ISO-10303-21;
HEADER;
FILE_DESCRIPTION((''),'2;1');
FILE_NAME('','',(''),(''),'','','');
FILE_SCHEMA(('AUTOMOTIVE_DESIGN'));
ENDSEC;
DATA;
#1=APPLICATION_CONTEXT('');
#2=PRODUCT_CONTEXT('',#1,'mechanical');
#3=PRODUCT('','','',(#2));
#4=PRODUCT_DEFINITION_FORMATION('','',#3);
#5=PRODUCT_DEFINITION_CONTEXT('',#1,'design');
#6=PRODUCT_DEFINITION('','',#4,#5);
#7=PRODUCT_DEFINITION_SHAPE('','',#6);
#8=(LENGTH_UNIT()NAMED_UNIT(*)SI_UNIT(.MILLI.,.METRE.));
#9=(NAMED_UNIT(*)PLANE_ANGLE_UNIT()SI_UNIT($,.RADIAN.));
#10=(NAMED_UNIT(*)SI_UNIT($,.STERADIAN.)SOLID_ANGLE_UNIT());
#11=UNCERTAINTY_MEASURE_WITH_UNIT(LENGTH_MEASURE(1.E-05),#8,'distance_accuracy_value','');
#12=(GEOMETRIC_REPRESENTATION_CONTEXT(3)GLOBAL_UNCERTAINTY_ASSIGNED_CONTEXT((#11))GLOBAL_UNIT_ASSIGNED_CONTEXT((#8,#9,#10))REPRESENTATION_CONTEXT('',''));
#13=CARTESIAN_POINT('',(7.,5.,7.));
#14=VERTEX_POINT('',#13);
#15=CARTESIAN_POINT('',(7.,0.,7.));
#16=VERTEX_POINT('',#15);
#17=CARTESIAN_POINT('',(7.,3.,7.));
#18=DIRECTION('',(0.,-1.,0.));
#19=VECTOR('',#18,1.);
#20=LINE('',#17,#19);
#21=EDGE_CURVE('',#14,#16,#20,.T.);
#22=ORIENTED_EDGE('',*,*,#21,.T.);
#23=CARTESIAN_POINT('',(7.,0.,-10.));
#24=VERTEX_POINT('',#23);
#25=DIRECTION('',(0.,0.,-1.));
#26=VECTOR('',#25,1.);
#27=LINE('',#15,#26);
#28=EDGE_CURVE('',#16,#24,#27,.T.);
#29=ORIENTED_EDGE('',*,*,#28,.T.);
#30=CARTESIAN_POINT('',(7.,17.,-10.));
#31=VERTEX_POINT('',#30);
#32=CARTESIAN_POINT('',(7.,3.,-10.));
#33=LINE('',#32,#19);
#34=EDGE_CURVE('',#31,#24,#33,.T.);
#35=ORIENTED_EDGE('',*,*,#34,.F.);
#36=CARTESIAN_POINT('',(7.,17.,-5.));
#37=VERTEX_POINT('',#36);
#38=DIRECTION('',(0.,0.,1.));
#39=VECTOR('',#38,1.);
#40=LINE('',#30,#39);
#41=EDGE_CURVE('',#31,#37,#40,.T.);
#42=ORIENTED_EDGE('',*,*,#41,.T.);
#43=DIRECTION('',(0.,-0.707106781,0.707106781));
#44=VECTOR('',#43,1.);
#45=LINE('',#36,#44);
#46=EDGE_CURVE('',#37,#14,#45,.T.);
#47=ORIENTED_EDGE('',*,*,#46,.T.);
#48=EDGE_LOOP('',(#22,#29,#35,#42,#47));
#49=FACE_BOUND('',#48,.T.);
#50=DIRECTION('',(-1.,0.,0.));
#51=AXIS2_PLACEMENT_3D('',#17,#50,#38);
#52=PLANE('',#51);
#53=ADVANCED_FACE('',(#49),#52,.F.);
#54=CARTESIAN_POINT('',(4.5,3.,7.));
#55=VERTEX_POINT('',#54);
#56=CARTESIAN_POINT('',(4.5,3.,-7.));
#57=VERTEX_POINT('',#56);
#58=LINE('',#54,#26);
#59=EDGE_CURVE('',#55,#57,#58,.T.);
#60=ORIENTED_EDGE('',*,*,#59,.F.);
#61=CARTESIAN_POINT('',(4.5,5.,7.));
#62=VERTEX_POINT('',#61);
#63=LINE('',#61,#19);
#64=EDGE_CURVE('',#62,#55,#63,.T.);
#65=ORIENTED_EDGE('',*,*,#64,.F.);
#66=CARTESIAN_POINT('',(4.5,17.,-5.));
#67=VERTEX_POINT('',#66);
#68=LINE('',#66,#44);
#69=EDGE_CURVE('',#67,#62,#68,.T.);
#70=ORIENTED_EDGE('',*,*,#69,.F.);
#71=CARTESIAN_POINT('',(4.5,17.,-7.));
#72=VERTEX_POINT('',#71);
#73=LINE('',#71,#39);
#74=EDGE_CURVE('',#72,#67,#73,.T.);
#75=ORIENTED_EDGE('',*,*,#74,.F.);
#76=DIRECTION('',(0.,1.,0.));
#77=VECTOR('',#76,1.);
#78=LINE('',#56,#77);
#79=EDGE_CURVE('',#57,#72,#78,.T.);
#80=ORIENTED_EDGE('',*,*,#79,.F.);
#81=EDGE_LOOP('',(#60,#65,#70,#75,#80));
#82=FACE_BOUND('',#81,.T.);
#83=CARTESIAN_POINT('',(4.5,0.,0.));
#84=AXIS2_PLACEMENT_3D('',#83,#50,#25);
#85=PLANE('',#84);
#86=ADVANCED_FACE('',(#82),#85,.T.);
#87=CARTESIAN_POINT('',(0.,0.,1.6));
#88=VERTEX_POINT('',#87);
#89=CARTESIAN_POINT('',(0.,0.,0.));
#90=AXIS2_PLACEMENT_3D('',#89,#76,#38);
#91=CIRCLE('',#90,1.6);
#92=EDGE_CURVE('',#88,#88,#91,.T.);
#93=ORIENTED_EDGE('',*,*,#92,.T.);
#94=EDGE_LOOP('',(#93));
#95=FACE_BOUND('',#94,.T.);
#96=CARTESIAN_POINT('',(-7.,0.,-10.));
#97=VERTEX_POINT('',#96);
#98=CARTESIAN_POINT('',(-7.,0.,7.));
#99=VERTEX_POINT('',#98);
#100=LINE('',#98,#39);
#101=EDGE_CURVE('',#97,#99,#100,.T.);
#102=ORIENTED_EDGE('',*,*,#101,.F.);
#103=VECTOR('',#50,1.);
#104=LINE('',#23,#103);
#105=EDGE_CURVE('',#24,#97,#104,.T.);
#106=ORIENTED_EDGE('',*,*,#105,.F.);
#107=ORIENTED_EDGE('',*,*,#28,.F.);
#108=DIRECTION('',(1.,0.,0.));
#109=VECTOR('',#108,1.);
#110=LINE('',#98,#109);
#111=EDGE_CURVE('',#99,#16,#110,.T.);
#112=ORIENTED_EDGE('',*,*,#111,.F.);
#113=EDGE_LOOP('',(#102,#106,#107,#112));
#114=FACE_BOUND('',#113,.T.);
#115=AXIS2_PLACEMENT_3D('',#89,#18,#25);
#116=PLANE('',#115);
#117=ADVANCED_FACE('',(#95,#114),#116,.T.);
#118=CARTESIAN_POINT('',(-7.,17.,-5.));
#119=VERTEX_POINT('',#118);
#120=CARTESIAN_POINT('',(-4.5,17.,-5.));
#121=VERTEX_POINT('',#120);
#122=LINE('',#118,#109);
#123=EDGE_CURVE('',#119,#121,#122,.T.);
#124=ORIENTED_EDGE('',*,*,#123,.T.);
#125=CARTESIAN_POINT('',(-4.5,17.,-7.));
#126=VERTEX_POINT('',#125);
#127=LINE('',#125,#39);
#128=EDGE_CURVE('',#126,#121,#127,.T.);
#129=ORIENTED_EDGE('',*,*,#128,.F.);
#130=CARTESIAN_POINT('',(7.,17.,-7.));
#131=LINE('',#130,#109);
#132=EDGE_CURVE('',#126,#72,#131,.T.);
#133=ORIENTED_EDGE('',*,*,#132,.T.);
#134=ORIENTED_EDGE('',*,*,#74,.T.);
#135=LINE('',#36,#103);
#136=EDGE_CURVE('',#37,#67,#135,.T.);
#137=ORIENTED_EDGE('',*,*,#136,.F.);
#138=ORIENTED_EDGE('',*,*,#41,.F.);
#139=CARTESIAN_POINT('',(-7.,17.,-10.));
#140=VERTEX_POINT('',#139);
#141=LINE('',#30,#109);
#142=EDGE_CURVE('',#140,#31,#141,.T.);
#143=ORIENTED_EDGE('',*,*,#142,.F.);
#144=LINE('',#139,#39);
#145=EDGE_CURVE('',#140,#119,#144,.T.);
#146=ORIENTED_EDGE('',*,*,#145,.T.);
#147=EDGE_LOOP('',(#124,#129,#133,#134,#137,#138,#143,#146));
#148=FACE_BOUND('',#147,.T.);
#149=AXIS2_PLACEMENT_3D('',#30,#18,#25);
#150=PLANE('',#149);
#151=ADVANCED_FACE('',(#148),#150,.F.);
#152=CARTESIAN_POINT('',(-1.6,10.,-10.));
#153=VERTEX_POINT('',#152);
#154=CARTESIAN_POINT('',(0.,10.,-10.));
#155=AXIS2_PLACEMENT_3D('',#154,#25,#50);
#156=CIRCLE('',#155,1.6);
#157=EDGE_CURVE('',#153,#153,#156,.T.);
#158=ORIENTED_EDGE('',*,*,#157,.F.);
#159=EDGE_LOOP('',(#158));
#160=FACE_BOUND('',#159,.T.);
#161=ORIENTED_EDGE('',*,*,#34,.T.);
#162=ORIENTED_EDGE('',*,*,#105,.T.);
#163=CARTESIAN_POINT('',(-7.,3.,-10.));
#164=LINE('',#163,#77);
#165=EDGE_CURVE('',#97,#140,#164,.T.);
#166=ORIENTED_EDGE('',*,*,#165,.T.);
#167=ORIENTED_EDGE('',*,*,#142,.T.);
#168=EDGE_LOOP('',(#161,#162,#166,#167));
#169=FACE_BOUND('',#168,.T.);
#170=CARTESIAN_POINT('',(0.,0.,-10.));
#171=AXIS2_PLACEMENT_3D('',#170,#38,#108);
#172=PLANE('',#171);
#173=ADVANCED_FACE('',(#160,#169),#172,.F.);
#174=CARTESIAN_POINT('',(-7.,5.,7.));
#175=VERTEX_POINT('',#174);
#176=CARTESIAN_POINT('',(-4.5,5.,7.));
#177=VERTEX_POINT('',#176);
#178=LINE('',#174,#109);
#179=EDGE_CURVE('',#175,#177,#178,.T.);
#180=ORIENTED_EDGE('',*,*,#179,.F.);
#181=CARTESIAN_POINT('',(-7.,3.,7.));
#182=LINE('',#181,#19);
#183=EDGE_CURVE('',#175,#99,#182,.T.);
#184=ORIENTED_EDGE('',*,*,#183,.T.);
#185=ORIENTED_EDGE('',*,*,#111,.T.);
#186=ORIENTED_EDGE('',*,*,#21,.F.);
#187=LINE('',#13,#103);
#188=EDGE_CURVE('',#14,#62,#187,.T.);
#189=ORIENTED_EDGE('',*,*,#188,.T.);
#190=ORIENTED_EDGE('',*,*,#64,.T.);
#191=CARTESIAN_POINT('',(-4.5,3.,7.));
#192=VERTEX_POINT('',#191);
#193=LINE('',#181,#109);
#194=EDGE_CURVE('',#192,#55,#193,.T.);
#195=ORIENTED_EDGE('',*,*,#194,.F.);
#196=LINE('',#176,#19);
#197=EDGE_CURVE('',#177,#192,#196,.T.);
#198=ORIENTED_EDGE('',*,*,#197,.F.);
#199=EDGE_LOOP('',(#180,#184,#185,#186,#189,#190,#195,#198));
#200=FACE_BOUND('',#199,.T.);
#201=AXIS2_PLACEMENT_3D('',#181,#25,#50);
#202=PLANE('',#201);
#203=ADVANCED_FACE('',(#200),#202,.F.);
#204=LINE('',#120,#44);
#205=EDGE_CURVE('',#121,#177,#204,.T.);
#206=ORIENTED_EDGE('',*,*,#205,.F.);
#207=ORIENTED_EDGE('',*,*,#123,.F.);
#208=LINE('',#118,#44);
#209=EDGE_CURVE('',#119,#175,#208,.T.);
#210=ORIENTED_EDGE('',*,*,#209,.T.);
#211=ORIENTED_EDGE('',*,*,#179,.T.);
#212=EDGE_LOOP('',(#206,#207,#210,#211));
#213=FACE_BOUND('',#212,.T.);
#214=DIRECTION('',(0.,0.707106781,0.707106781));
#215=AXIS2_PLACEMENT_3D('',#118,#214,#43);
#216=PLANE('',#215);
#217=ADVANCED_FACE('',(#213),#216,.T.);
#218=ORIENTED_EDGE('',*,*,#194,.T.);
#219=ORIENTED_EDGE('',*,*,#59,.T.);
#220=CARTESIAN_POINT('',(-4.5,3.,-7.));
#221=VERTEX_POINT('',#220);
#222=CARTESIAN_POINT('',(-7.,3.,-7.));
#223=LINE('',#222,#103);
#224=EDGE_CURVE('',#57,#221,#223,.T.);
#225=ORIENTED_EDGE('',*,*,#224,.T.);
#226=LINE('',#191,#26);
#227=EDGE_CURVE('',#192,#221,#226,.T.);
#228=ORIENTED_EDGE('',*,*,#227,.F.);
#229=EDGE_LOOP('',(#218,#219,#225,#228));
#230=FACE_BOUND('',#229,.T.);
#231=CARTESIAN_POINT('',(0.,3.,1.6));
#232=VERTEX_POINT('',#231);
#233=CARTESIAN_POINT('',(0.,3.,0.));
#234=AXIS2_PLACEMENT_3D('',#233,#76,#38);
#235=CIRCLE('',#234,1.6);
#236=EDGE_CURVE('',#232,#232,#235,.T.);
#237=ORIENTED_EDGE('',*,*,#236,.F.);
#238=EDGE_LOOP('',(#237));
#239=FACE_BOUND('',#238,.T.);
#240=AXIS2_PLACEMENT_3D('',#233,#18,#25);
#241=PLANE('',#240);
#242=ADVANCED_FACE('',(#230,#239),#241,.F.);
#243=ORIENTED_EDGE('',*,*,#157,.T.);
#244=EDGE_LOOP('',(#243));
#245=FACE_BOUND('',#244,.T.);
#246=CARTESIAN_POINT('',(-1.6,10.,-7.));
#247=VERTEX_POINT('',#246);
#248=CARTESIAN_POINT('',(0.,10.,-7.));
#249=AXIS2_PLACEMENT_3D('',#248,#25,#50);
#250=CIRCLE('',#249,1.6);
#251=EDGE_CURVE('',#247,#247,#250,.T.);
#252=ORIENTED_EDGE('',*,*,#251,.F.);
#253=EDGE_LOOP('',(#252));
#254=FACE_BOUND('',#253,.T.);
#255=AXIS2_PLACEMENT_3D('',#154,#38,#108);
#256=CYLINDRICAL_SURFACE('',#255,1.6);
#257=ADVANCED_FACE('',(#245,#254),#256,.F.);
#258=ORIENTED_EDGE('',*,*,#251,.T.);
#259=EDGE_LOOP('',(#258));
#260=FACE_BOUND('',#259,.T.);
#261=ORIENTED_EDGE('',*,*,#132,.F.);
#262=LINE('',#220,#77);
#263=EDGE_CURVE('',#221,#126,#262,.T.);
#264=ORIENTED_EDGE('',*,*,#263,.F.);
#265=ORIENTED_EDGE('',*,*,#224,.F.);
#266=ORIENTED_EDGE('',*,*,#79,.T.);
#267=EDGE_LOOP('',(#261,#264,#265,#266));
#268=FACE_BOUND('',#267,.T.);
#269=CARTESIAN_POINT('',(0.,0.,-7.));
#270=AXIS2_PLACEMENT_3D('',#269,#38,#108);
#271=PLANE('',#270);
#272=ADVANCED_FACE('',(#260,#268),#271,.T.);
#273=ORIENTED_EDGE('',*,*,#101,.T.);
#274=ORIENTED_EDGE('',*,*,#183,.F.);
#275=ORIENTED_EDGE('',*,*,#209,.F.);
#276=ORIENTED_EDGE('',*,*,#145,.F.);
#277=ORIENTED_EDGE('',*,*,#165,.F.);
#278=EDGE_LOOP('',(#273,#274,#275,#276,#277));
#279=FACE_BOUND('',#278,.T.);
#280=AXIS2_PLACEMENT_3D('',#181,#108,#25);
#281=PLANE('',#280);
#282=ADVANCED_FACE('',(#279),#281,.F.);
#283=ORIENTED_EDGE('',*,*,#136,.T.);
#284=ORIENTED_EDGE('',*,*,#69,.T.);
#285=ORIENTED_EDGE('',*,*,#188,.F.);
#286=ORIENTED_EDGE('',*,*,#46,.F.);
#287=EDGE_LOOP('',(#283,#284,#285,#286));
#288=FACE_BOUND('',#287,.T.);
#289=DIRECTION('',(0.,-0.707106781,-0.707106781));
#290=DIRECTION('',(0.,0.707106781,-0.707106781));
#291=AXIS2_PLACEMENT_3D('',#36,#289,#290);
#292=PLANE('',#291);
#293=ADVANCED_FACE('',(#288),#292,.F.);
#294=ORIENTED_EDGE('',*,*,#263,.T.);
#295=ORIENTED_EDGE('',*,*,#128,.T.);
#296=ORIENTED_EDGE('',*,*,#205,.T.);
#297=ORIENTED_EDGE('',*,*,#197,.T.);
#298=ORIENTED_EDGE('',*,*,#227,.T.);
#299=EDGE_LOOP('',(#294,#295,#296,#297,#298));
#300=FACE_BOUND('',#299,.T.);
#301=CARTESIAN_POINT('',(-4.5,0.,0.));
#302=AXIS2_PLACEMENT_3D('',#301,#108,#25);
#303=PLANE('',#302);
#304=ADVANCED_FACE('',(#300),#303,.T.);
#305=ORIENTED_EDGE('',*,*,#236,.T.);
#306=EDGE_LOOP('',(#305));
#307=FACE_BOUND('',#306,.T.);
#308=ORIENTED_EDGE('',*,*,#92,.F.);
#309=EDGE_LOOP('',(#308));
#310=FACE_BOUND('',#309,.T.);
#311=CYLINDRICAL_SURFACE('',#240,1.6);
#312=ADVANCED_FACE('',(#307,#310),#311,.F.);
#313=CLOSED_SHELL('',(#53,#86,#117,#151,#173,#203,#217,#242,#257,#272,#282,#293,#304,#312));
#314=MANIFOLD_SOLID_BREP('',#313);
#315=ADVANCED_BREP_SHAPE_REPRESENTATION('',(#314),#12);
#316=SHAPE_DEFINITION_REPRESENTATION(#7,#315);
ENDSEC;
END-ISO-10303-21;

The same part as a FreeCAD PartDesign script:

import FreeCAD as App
import Part
import Sketcher
Q = App.Units.Quantity


def add_polygon(sketch, points):
    """Adds a closed chain of lines whose ends are joined by coincident constraints."""
    first, n = sketch.GeometryCount, len(points)
    for a, b in zip(points, points[1:] + points[:1]):
        sketch.addGeometry(Part.LineSegment(App.Vector(*a, 0), App.Vector(*b, 0)), False)
    for i in range(n):
        sketch.addConstraint(Sketcher.Constraint("Coincident", first + i, 2, first + (i + 1) % n, 1))

doc = App.newDocument("Part")
body = doc.addObject("PartDesign::Body", "Body")

sketch1 = doc.addObject("Sketcher::SketchObject", "Sketch")
body.addObject(sketch1)
sketch1.AttachmentSupport = (doc.XZ_Plane, [""])
sketch1.MapMode = "FlatFace"
add_polygon(sketch1, [(-7, -7), (-7, 7), (7, 7), (7, -7)])
sketch1.addGeometry(Part.Circle(App.Vector(0, 0, 0), App.Vector(0, 0, 1), 1.6), False)
sketch1.addConstraint([
    Sketcher.Constraint("Vertical", 0),
    Sketcher.Constraint("Horizontal", 1),
    Sketcher.Constraint("Vertical", 2),
    Sketcher.Constraint("Horizontal", 3),
    Sketcher.Constraint("Coincident", 4, 3, -1, 1),
    Sketcher.Constraint("Symmetric", 0, 2, 2, 2, -1, 1),
    Sketcher.Constraint("Equal", 3, 0),
    Sketcher.Constraint("Diameter", 4, Q("3.2 mm")),
    Sketcher.Constraint("DistanceX", 1, 1, 1, 2, Q("14 mm")),
])
pad1 = doc.addObject("PartDesign::Pad", "Pad")
body.addObject(pad1)
pad1.Profile = sketch1
pad1.Length = 3
pad1.Reversed = True

sketch2 = doc.addObject("Sketcher::SketchObject", "Sketch001")
body.addObject(sketch2)
sketch2.AttachmentSupport = (doc.XY_Plane, [""])
sketch2.MapMode = "FlatFace"
sketch2.AttachmentOffset = App.Placement(App.Vector(0, 0, -7), App.Rotation())
add_polygon(sketch2, [(7, 0), (-7, 0), (-7, 17), (7, 17)])
sketch2.addGeometry(Part.Circle(App.Vector(0, 10, 0), App.Vector(0, 0, 1), 1.6), False)
sketch2.addConstraint([
    Sketcher.Constraint("Horizontal", 0),
    Sketcher.Constraint("Vertical", 1),
    Sketcher.Constraint("Horizontal", 2),
    Sketcher.Constraint("Vertical", 3),
    Sketcher.Constraint("Symmetric", 0, 2, 3, 2, -1, 1),
    Sketcher.Constraint("PointOnObject", 4, 3, -2),
    Sketcher.Constraint("Diameter", 4, Q("3.2 mm")),
    Sketcher.Constraint("DistanceX", 0, 2, 0, 1, Q("14 mm")),
    Sketcher.Constraint("DistanceY", 1, 1, 1, 2, Q("17 mm")),
    Sketcher.Constraint("DistanceY", -1, 1, 4, 3, Q("10 mm")),
])
pad2 = doc.addObject("PartDesign::Pad", "Pad001")
body.addObject(pad2)
pad2.Profile = sketch2
pad2.Length = 3
pad2.Reversed = True

sketch3 = doc.addObject("Sketcher::SketchObject", "Sketch002")
body.addObject(sketch3)
sketch3.AttachmentSupport = (doc.YZ_Plane, [""])
sketch3.MapMode = "FlatFace"
sketch3.AttachmentOffset = App.Placement(App.Vector(0, 0, -4.5), App.Rotation())
add_polygon(sketch3, [(17, -7), (17, -5), (5, 7), (3, 7), (3, -7)])
sketch3.addConstraint([
    Sketcher.Constraint("Vertical", 0),
    Sketcher.Constraint("Horizontal", 2),
    Sketcher.Constraint("Vertical", 3),
    Sketcher.Constraint("Horizontal", 4),
    Sketcher.Constraint("Equal", 2, 0),
    Sketcher.Constraint("Equal", 4, 3),
    Sketcher.Constraint("DistanceX", 2, 2, 2, 1, Q("2 mm")),
    Sketcher.Constraint("DistanceX", 4, 1, 4, 2, Q("14 mm")),
    Sketcher.Constraint("DistanceX", -1, 1, 0, 2, Q("17 mm")),
    Sketcher.Constraint("DistanceY", 0, 2, -1, 1, Q("5 mm")),
])
pad3 = doc.addObject("PartDesign::Pad", "Pad002")
body.addObject(pad3)
pad3.Profile = sketch3
pad3.Length = 2.5
pad3.Reversed = True
doc.recompute()

mirrored = doc.addObject("PartDesign::Mirrored", "Mirrored")
body.addObject(mirrored)
mirrored.Originals = [pad3]
mirrored.MirrorPlane = (doc.YZ_Plane, [""])
body.Tip = mirrored

doc.recompute()
